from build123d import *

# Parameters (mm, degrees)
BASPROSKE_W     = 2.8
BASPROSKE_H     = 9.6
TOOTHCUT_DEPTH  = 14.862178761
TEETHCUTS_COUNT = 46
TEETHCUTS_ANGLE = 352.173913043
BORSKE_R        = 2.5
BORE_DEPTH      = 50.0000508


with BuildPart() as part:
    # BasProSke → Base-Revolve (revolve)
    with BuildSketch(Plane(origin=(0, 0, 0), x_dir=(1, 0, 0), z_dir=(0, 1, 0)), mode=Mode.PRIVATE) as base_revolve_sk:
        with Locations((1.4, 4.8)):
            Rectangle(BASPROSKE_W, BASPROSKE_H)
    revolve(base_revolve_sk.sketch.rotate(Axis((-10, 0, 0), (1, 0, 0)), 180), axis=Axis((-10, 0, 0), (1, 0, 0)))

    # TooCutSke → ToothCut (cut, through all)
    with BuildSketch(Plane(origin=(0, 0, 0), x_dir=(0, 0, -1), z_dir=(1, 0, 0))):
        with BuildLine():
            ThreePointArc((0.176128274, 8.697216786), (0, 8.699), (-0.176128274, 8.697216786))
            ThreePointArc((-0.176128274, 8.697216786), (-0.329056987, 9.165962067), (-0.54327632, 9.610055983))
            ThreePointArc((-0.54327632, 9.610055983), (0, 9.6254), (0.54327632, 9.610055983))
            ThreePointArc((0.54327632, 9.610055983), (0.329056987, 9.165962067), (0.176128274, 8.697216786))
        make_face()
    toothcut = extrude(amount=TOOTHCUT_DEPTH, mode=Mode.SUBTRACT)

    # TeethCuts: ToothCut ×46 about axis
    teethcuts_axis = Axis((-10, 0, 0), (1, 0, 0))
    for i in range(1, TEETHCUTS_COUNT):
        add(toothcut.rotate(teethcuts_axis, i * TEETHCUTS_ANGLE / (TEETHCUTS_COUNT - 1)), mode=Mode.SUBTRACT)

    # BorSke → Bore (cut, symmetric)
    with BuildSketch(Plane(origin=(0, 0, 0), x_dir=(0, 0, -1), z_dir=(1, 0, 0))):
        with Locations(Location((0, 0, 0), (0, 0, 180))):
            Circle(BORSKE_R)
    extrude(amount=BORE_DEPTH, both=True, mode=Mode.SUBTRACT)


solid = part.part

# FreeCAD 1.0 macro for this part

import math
import FreeCAD as App
import Part
import Sketcher

V = App.Vector


def add_polygon(sketch, points):
    """Adds a closed chain of lines whose ends are joined by coincident constraints."""
    first, n = sketch.GeometryCount, len(points)
    for a, b in zip(points, points[1:] + points[:1]):
        sketch.addGeometry(Part.LineSegment(App.Vector(*a, 0), App.Vector(*b, 0)), False)
    for i in range(n):
        sketch.addConstraint(Sketcher.Constraint("Coincident", first + i, 2, first + (i + 1) % n, 1))

doc = App.newDocument("Part")
body = doc.addObject("PartDesign::Body", "Body")

sketch1 = doc.addObject("Sketcher::SketchObject", "Sketch")
body.addObject(sketch1)
sketch1.AttachmentSupport = (doc.XZ_Plane, [""])
sketch1.MapMode = "FlatFace"
add_polygon(sketch1, [(0, -9.6), (0, 0), (2.8, 0), (2.8, -9.6)])
sketch1.addConstraint([
    Sketcher.Constraint("Vertical", 0),
    Sketcher.Constraint("Horizontal", 1),
    Sketcher.Constraint("Vertical", 2),
    Sketcher.Constraint("Horizontal", 3),
    Sketcher.Constraint("Coincident", 0, 2, -1, 1),
    Sketcher.Constraint("DistanceX", 1, 1, 1, 2, 2.8),
    Sketcher.Constraint("DistanceY", 0, 1, 0, 2, 9.6),
])
revolution = doc.addObject("PartDesign::Revolution", "Revolution")
body.addObject(revolution)
revolution.Profile = sketch1
revolution.ReferenceAxis = (sketch1, ["H_Axis"])
revolution.Angle = 360

sketch2 = doc.addObject("Sketcher::SketchObject", "Sketch001")
body.addObject(sketch2)
sketch2.AttachmentSupport = (doc.YZ_Plane, [""])
sketch2.MapMode = "FlatFace"
sketch2.addGeometry([
    Part.ArcOfCircle(Part.Circle(V(0, 0, 0), V(0, 0, 1), 8.7), math.radians(-1.16), math.radians(1.16)),
    Part.ArcOfCircle(Part.Circle(V(7.79, -3.74, 0), V(0, 0, 1), 3.68), math.radians(60.41), math.radians(75.77)),
    Part.ArcOfCircle(Part.Circle(V(0, 0, 0), V(0, 0, 1), 9.63), math.radians(-3.24), math.radians(3.24)),
    Part.ArcOfCircle(Part.Circle(V(7.79, 3.74, 0), V(0, 0, 1), 3.68), math.radians(-75.77), math.radians(-60.41)),
], False)
sketch2.addConstraint([
    Sketcher.Constraint("Coincident", 0, 1, 1, 2),
    Sketcher.Constraint("Coincident", 1, 1, 2, 1),
    Sketcher.Constraint("Coincident", 2, 2, 3, 2),
    Sketcher.Constraint("Coincident", 3, 1, 0, 2),
    Sketcher.Constraint("Coincident", 0, 3, -1, 1),
    Sketcher.Constraint("Coincident", 2, 3, -1, 1),
    Sketcher.Constraint("Equal", 1, 3),
    Sketcher.Constraint("Symmetric", 1, 3, 3, 3, -1),
    Sketcher.Constraint("Radius", 1, 3.68),
    Sketcher.Constraint("Radius", 2, 9.6254),
    Sketcher.Constraint("Radius", 0, 8.698998),
    Sketcher.Constraint("DistanceY", 1, 3, 3, 3, 7.486499),
    Sketcher.Constraint("DistanceX", -1, 1, 1, 3, 7.792758),
])
pocket1 = doc.addObject("PartDesign::Pocket", "Pocket")
body.addObject(pocket1)
pocket1.Profile = sketch2
pocket1.Type = "ThroughAll"
pocket1.Reversed = True
doc.recompute()

polarpattern = doc.addObject("PartDesign::PolarPattern", "PolarPattern")
body.addObject(polarpattern)
polarpattern.Originals = [pocket1]
polarpattern.Axis = (doc.X_Axis, [""])
polarpattern.Angle = 360
polarpattern.Occurrences = 46
body.Tip = polarpattern

sketch3 = doc.addObject("Sketcher::SketchObject", "Sketch002")
body.addObject(sketch3)
sketch3.AttachmentSupport = (doc.YZ_Plane, [""])
sketch3.MapMode = "FlatFace"
sketch3.addGeometry(Part.Circle(V(0, 0, 0), V(0, 0, 1), 2.5), False)
sketch3.addConstraint([
    Sketcher.Constraint("Coincident", 0, 3, -1, 1),
    Sketcher.Constraint("Diameter", 0, 5.0),
])
pocket2 = doc.addObject("PartDesign::Pocket", "Pocket001")
body.addObject(pocket2)
pocket2.Profile = sketch3
pocket2.Length = 100.000102
pocket2.Midplane = True

doc.recompute()
